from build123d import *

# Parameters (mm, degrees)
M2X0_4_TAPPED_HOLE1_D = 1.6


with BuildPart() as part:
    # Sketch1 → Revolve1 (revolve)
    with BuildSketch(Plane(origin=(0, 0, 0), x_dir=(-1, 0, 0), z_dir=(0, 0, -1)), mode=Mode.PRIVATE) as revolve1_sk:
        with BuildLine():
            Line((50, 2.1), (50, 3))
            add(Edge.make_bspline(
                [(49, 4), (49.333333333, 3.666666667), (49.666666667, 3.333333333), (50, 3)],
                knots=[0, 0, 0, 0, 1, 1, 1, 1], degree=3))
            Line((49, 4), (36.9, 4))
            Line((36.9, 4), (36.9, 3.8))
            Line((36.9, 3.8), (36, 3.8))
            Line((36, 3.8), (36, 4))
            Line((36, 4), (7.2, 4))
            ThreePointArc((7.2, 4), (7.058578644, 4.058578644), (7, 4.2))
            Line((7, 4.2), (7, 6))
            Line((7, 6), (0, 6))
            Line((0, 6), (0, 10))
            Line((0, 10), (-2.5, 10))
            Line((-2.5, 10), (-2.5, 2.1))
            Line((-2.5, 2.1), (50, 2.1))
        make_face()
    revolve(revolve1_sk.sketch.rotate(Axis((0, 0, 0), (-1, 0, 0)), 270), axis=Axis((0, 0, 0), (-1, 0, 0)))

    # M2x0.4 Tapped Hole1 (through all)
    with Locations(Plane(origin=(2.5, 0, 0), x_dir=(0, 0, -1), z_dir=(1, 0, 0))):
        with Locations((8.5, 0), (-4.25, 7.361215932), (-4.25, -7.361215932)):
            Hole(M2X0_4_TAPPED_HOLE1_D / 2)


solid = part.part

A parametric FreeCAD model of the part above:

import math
import FreeCAD as App
import Part
import Sketcher
Q = App.Units.Quantity

doc = App.newDocument("Part")
body = doc.addObject("PartDesign::Body", "Body")

sketch1 = body.newObject("Sketcher::SketchObject", "Sketch")
sketch1.AttachmentSupport = (doc.getObject("XY_Plane"), [""])
sketch1.MapMode = "FlatFace"
sketch1.addGeometry([
    Part.LineSegment(App.Vector(-50, 2.1, 0), App.Vector(-50, 3, 0)),
    Part.BSplineCurve([App.Vector(-49, 4, 0), App.Vector(-49.333333, 3.666667, 0), App.Vector(-49.666667, 3.333333, 0), App.Vector(-50, 3, 0)], [4, 4], [0, 1], False, 3, [1, 1, 1, 1], False),
    Part.LineSegment(App.Vector(-49, 4, 0), App.Vector(-36.9, 4, 0)),
    Part.LineSegment(App.Vector(-36.9, 4, 0), App.Vector(-36.9, 3.8, 0)),
    Part.LineSegment(App.Vector(-36.9, 3.8, 0), App.Vector(-36, 3.8, 0)),
    Part.LineSegment(App.Vector(-36, 3.8, 0), App.Vector(-36, 4, 0)),
    Part.LineSegment(App.Vector(-36, 4, 0), App.Vector(-7.2, 4, 0)),
    Part.ArcOfCircle(Part.Circle(App.Vector(-7.2, 4.2, 0), App.Vector(0, 0, 1), 0.2), math.radians(-90), math.radians(0)),
    Part.LineSegment(App.Vector(-7, 4.2, 0), App.Vector(-7, 6, 0)),
    Part.LineSegment(App.Vector(-7, 6, 0), App.Vector(0, 6, 0)),
    Part.LineSegment(App.Vector(0, 6, 0), App.Vector(0, 10, 0)),
    Part.LineSegment(App.Vector(0, 10, 0), App.Vector(2.5, 10, 0)),
    Part.LineSegment(App.Vector(2.5, 10, 0), App.Vector(2.5, 2.1, 0)),
    Part.LineSegment(App.Vector(2.5, 2.1, 0), App.Vector(-50, 2.1, 0)),
], False)
sketch1.addConstraint([
    Sketcher.Constraint("Block", 1),
    Sketcher.Constraint("Coincident", 0, 2, 1, 2),
    Sketcher.Constraint("Coincident", 1, 1, 2, 1),
    Sketcher.Constraint("Coincident", 2, 2, 3, 1),
    Sketcher.Constraint("Coincident", 3, 2, 4, 1),
    Sketcher.Constraint("Coincident", 4, 2, 5, 1),
    Sketcher.Constraint("Coincident", 5, 2, 6, 1),
    Sketcher.Constraint("Tangent", 6, 2, 7, 1),
    Sketcher.Constraint("Tangent", 7, 2, 8, 1),
    Sketcher.Constraint("Coincident", 8, 2, 9, 1),
    Sketcher.Constraint("Coincident", 9, 2, 10, 1),
    Sketcher.Constraint("Coincident", 10, 2, 11, 1),
    Sketcher.Constraint("Coincident", 11, 2, 12, 1),
    Sketcher.Constraint("Coincident", 12, 2, 13, 1),
    Sketcher.Constraint("Coincident", 13, 2, 0, 1),
    Sketcher.Constraint("Vertical", 0),
    Sketcher.Constraint("Horizontal", 2),
    Sketcher.Constraint("Vertical", 3),
    Sketcher.Constraint("Horizontal", 4),
    Sketcher.Constraint("Vertical", 5),
    Sketcher.Constraint("Horizontal", 6),
    Sketcher.Constraint("Vertical", 8),
    Sketcher.Constraint("Horizontal", 9),
    Sketcher.Constraint("Vertical", 10),
    Sketcher.Constraint("Horizontal", 11),
    Sketcher.Constraint("Vertical", 12),
    Sketcher.Constraint("Horizontal", 13),
    Sketcher.Constraint("PointOnObject", 9, 2, -2),
    Sketcher.Constraint("Horizontal", 2, 2, 5, 2),
    Sketcher.Constraint("Equal", 4, 0),
    Sketcher.Constraint("Radius", 7, Q("0.2 mm")),
    Sketcher.Constraint("DistanceX", 9, 1, 9, 2, Q("7 mm")),
    Sketcher.Constraint("DistanceY", 10, 1, 10, 2, Q("4 mm")),
    Sketcher.Constraint("DistanceX", 2, 1, 2, 2, Q("12.1 mm")),
    Sketcher.Constraint("DistanceX", 4, 1, 4, 2, Q("0.9 mm")),
    Sketcher.Constraint("DistanceX", 11, 1, 11, 2, Q("2.5 mm")),
    Sketcher.Constraint("DistanceY", 3, 2, 3, 1, Q("0.2 mm")),
    Sketcher.Constraint("DistanceY", 8, 1, 8, 2, Q("1.8 mm")),
])
revolution = body.newObject("PartDesign::Revolution", "Revolution")
revolution.Profile = sketch1
revolution.ReferenceAxis = (sketch1, ["H_Axis"])
revolution.Angle = 360

sketch2 = body.newObject("Sketcher::SketchObject", "Sketch001")
sketch2.AttachmentSupport = (doc.getObject("YZ_Plane"), [""])
sketch2.MapMode = "FlatFace"
sketch2.AttachmentOffset = App.Placement(App.Vector(0, 0, 2.5), App.Rotation())
sketch2.addGeometry([
    Part.Circle(App.Vector(0, -8.5, 0), App.Vector(0, 0, 1), 0.8),
    Part.Circle(App.Vector(7.4, 4.2, 0), App.Vector(0, 0, 1), 0.8),
    Part.Circle(App.Vector(-7.4, 4.2, 0), App.Vector(0, 0, 1), 0.8),
], False)
sketch2.addConstraint([
    Sketcher.Constraint("Equal", 0, 1),
    Sketcher.Constraint("Equal", 1, 2),
    Sketcher.Constraint("Symmetric", 1, 3, 2, 3, -2),
    Sketcher.Constraint("PointOnObject", 0, 3, -2),
    Sketcher.Constraint("Diameter", 0, Q("1.6 mm")),
    Sketcher.Constraint("DistanceY", 0, 3, -1, 1, Q("8.5 mm")),
    Sketcher.Constraint("DistanceY", -1, 1, 1, 3, Q("4.25 mm")),
    Sketcher.Constraint("DistanceX", 2, 3, 1, 3, Q("14.722432 mm")),
])
doc.recompute()
hole = body.newObject("PartDesign::Hole", "Hole")
hole.Profile = sketch2
hole.ThreadType = "None"
hole.Diameter = 1.6
hole.DepthType = "ThroughAll"

doc.recompute()
